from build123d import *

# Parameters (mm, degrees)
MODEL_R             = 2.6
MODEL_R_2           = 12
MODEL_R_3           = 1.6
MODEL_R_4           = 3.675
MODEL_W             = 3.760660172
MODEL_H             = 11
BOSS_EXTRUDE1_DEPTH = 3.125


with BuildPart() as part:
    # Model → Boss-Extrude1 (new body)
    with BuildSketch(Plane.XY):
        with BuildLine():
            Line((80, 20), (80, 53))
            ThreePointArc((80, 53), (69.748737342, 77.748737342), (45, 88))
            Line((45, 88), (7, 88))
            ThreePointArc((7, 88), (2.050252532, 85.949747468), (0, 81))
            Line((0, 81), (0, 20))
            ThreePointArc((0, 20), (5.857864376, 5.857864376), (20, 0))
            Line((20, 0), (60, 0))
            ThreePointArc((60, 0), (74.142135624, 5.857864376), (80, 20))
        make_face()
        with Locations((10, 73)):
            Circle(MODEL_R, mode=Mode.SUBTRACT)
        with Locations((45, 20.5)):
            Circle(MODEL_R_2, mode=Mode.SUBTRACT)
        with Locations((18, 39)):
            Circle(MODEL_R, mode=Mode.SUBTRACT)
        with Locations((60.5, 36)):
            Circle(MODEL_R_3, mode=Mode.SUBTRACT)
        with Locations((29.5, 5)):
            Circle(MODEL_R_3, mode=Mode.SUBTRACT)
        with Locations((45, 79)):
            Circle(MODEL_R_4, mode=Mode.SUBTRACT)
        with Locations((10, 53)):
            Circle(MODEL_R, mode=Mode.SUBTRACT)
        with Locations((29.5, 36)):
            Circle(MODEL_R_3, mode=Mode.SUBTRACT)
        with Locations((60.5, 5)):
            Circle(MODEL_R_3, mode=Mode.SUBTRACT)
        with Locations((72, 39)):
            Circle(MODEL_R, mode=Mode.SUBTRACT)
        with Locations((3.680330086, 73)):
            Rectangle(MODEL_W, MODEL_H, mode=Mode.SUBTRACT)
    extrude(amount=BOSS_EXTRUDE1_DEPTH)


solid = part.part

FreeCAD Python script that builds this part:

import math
import FreeCAD as App
import Part
import Sketcher
from FreeCAD import Vector


def add_polygon(sketch, points):
    """Adds a closed chain of lines whose ends are joined by coincident constraints."""
    first, n = sketch.GeometryCount, len(points)
    for a, b in zip(points, points[1:] + points[:1]):
        sketch.addGeometry(Part.LineSegment(App.Vector(*a, 0), App.Vector(*b, 0)), False)
    for i in range(n):
        sketch.addConstraint(Sketcher.Constraint("Coincident", first + i, 2, first + (i + 1) % n, 1))

doc = App.newDocument("Part")
body = doc.addObject("PartDesign::Body", "Body")

# Sketch on XY plane
sketch1 = doc.addObject("Sketcher::SketchObject", "Sketch")
body.addObject(sketch1)
sketch1.AttachmentSupport = (doc.XY_Plane, [""])
sketch1.MapMode = "FlatFace"
sketch1.addGeometry(Part.LineSegment(Vector(80, 20, 0), Vector(80, 53, 0)), False)  # 0
sketch1.addGeometry(Part.ArcOfCircle(Part.Circle(Vector(45, 53, 0), Vector(0, 0, 1), 35), math.radians(0), math.radians(90)), False)  # 1
sketch1.addGeometry(Part.LineSegment(Vector(45, 88, 0), Vector(7, 88, 0)), False)  # 2
sketch1.addGeometry(Part.ArcOfCircle(Part.Circle(Vector(7, 81, 0), Vector(0, 0, 1), 7), math.radians(90), math.radians(180)), False)  # 3
sketch1.addGeometry(Part.LineSegment(Vector(0, 81, 0), Vector(0, 20, 0)), False)  # 4
sketch1.addGeometry(Part.ArcOfCircle(Part.Circle(Vector(20, 20, 0), Vector(0, 0, 1), 20), math.radians(180), math.radians(270)), False)  # 5
sketch1.addGeometry(Part.LineSegment(Vector(20, 0, 0), Vector(60, 0, 0)), False)  # 6
sketch1.addGeometry(Part.ArcOfCircle(Part.Circle(Vector(60, 20, 0), Vector(0, 0, 1), 20), math.radians(-90), math.radians(0)), False)  # 7
sketch1.addGeometry(Part.Circle(Vector(29.5, 5, 0), Vector(0, 0, 1), 1.6), False)  # 8
sketch1.addGeometry(Part.Circle(Vector(18, 39, 0), Vector(0, 0, 1), 2.6), False)  # 9
sketch1.addGeometry(Part.Circle(Vector(29.5, 36, 0), Vector(0, 0, 1), 1.6), False)  # 10
sketch1.addGeometry(Part.Circle(Vector(45, 20.5, 0), Vector(0, 0, 1), 12), False)  # 11
sketch1.addGeometry(Part.Circle(Vector(60.5, 5, 0), Vector(0, 0, 1), 1.6), False)  # 12
sketch1.addGeometry(Part.Circle(Vector(60.5, 36, 0), Vector(0, 0, 1), 1.6), False)  # 13
sketch1.addGeometry(Part.Circle(Vector(72, 39, 0), Vector(0, 0, 1), 2.6), False)  # 14
sketch1.addGeometry(Part.Circle(Vector(10, 53, 0), Vector(0, 0, 1), 2.6), False)  # 15
add_polygon(sketch1, [(5.6, 67.5), (1.8, 67.5), (1.8, 78.5), (5.6, 78.5)])  # lines 16-19
sketch1.addGeometry(Part.Circle(Vector(10, 73, 0), Vector(0, 0, 1), 2.6), False)  # 20
sketch1.addGeometry(Part.Circle(Vector(45, 79, 0), Vector(0, 0, 1), 3.7), False)  # 21
sketch1.addConstraint(Sketcher.Constraint("Tangent", 0, 2, 1, 1))
sketch1.addConstraint(Sketcher.Constraint("Tangent", 1, 2, 2, 1))
sketch1.addConstraint(Sketcher.Constraint("Tangent", 2, 2, 3, 1))
sketch1.addConstraint(Sketcher.Constraint("Tangent", 3, 2, 4, 1))
sketch1.addConstraint(Sketcher.Constraint("Tangent", 4, 2, 5, 1))
sketch1.addConstraint(Sketcher.Constraint("Tangent", 5, 2, 6, 1))
sketch1.addConstraint(Sketcher.Constraint("Tangent", 6, 2, 7, 1))
sketch1.addConstraint(Sketcher.Constraint("Tangent", 7, 2, 0, 1))
sketch1.addConstraint(Sketcher.Constraint("Vertical", 0))
sketch1.addConstraint(Sketcher.Constraint("Horizontal", 2))
sketch1.addConstraint(Sketcher.Constraint("Vertical", 4))
sketch1.addConstraint(Sketcher.Constraint("Horizontal", 6))
sketch1.addConstraint(Sketcher.Constraint("Horizontal", 16))
sketch1.addConstraint(Sketcher.Constraint("Vertical", 17))
sketch1.addConstraint(Sketcher.Constraint("Horizontal", 18))
sketch1.addConstraint(Sketcher.Constraint("Vertical", 19))
sketch1.addConstraint(Sketcher.Constraint("Equal", 5, 7))
sketch1.addConstraint(Sketcher.Constraint("Equal", 8, 10))
sketch1.addConstraint(Sketcher.Constraint("Equal", 10, 12))
sketch1.addConstraint(Sketcher.Constraint("Equal", 12, 13))
sketch1.addConstraint(Sketcher.Constraint("Equal", 9, 14))
sketch1.addConstraint(Sketcher.Constraint("Equal", 14, 15))
sketch1.addConstraint(Sketcher.Constraint("Equal", 15, 20))
sketch1.addConstraint(Sketcher.Constraint("PointOnObject", 3, 2, -2))
sketch1.addConstraint(Sketcher.Constraint("PointOnObject", 5, 2, -1))
sketch1.addConstraint(Sketcher.Constraint("Horizontal", 8, 3, 12, 3))
sketch1.addConstraint(Sketcher.Constraint("Horizontal", 10, 3, 13, 3))
sketch1.addConstraint(Sketcher.Constraint("Horizontal", 9, 3, 14, 3))
sketch1.addConstraint(Sketcher.Constraint("Horizontal", 1, 3, 15, 3))
sketch1.addConstraint(Sketcher.Constraint("Vertical", 8, 3, 10, 3))
sketch1.addConstraint(Sketcher.Constraint("Vertical", 1, 3, 11, 3))
sketch1.addConstraint(Sketcher.Constraint("Vertical", 12, 3, 13, 3))
sketch1.addConstraint(Sketcher.Constraint("Vertical", 15, 3, 20, 3))
sketch1.addConstraint(Sketcher.Constraint("Vertical", 11, 3, 21, 3))
sketch1.addConstraint(Sketcher.Constraint("Diameter", 11, 24.0))
sketch1.addConstraint(Sketcher.Constraint("Radius", 1, 35.0))
sketch1.addConstraint(Sketcher.Constraint("Radius", 3, 7.0))
sketch1.addConstraint(Sketcher.Constraint("Radius", 5, 20.0))
sketch1.addConstraint(Sketcher.Constraint("Diameter", 8, 3.2))
sketch1.addConstraint(Sketcher.Constraint("Diameter", 9, 5.2))
sketch1.addConstraint(Sketcher.Constraint("Diameter", 21, 7.35))
sketch1.addConstraint(Sketcher.Constraint("DistanceX", 2, 2, 2, 1, 38.0))
sketch1.addConstraint(Sketcher.Constraint("DistanceY", 0, 1, 0, 2, 33.0))
sketch1.addConstraint(Sketcher.Constraint("DistanceY", 17, 1, 17, 2, 11.0))
sketch1.addConstraint(Sketcher.Constraint("DistanceY", -1, 1, 8, 3, 5.0))
sketch1.addConstraint(Sketcher.Constraint("DistanceX", -1, 1, 9, 3, 18.0))
sketch1.addConstraint(Sketcher.Constraint("DistanceY", -1, 1, 9, 3, 39.0))
sketch1.addConstraint(Sketcher.Constraint("DistanceY", -1, 1, 10, 3, 36.0))
sketch1.addConstraint(Sketcher.Constraint("DistanceX", -1, 1, 14, 3, 72.0))
sketch1.addConstraint(Sketcher.Constraint("DistanceX", -1, 1, 15, 3, 10.0))
sketch1.addConstraint(Sketcher.Constraint("DistanceY", -1, 1, 20, 3, 73.0))
sketch1.addConstraint(Sketcher.Constraint("DistanceY", -1, 1, 21, 3, 79.0))
sketch1.addConstraint(Sketcher.Constraint("DistanceX", 8, 3, 12, 3, 31.0))
sketch1.addConstraint(Sketcher.Constraint("DistanceX", -1, 1, 8, 3, 29.5))
sketch1.addConstraint(Sketcher.Constraint("DistanceY", -1, 1, 11, 3, 20.5))
sketch1.addConstraint(Sketcher.Constraint("DistanceX", -1, 1, 16, 2, 1.8))
sketch1.addConstraint(Sketcher.Constraint("DistanceY", -1, 1, 16, 2, 67.5))
sketch1.addConstraint(Sketcher.Constraint("DistanceX", 16, 2, 16, 1, 3.76066))
pad1 = doc.addObject("PartDesign::Pad", "Pad")
body.addObject(pad1)
pad1.Profile = sketch1
pad1.Length = 3.125

doc.recompute()
